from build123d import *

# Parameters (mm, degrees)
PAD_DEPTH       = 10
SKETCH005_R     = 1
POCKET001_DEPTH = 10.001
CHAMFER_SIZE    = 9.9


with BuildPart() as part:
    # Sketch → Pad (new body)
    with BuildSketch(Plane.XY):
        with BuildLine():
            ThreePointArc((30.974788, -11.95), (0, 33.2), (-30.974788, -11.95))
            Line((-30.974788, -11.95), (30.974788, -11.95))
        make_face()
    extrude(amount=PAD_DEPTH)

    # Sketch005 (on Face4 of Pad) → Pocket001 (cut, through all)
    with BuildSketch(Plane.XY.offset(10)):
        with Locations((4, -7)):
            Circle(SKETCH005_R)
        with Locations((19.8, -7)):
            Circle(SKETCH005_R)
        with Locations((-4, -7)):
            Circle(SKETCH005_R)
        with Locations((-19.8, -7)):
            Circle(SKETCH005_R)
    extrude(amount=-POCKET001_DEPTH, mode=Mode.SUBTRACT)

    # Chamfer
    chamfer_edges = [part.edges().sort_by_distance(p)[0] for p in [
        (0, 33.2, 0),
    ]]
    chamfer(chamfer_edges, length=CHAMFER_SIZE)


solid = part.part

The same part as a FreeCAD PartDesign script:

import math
import FreeCAD as App
import Part
import Sketcher
from FreeCAD import Vector
Q = App.Units.Quantity


def edges_at(feature, points):
    """Names of the edges that pass closest to the given points."""
    edges = feature.Shape.Edges
    near = lambda p: min(range(len(edges)), key=lambda i: edges[i].distToShape(Part.Vertex(*p))[0])
    return sorted({f"Edge{near(p) + 1}" for p in points})

doc = App.newDocument("Part")
body = doc.addObject("PartDesign::Body", "Body")

# Sketch on XY plane
sketch1 = body.newObject("Sketcher::SketchObject", "Sketch")
sketch1.AttachmentSupport = (doc.getObject("XY_Plane"), [""])
sketch1.MapMode = "FlatFace"
sketch1.addGeometry(Part.ArcOfCircle(Part.Circle(Vector(0, 0, 0), Vector(0, 0, 1), 33), math.radians(-21), math.radians(201)), False)
sketch1.addGeometry(Part.LineSegment(Vector(-31, -12, 0), Vector(31, -12, 0)), False)
sketch1.addConstraint(Sketcher.Constraint("Coincident", 0, 1, 1, 2))
sketch1.addConstraint(Sketcher.Constraint("Coincident", 1, 1, 0, 2))
sketch1.addConstraint(Sketcher.Constraint("Horizontal", 1))
sketch1.addConstraint(Sketcher.Constraint("Coincident", 0, 3, -1, 1))
sketch1.addConstraint(Sketcher.Constraint("Radius", 0, Q("33.2 mm")))
sketch1.addConstraint(Sketcher.Constraint("DistanceY", 0, 1, -1, 1, Q("11.95 mm")))
pad1 = body.newObject("PartDesign::Pad", "Pad")
pad1.Profile = sketch1
pad1.Length = 10

# Sketch on XY plane
sketch2 = body.newObject("Sketcher::SketchObject", "Sketch001")
sketch2.AttachmentSupport = (doc.getObject("XY_Plane"), [""])
sketch2.MapMode = "FlatFace"
sketch2.AttachmentOffset = App.Placement(Vector(0, 0, 10), App.Rotation())
sketch2.addGeometry(Part.Circle(Vector(4, -7, 0), Vector(0, 0, 1), 1), False)
sketch2.addGeometry(Part.Circle(Vector(19.8, -7, 0), Vector(0, 0, 1), 1), False)
sketch2.addGeometry(Part.Circle(Vector(-4, -7, 0), Vector(0, 0, 1), 1), False)
sketch2.addGeometry(Part.Circle(Vector(-19.8, -7, 0), Vector(0, 0, 1), 1), False)
sketch2.addConstraint(Sketcher.Constraint("Equal", 0, 1))
sketch2.addConstraint(Sketcher.Constraint("Equal", 1, 2))
sketch2.addConstraint(Sketcher.Constraint("Equal", 2, 3))
sketch2.addConstraint(Sketcher.Constraint("Symmetric", 0, 3, 2, 3, -2))
sketch2.addConstraint(Sketcher.Constraint("Symmetric", 1, 3, 3, 3, -2))
sketch2.addConstraint(Sketcher.Constraint("Horizontal", 0, 3, 1, 3))
sketch2.addConstraint(Sketcher.Constraint("Diameter", 0, Q("2 mm")))
sketch2.addConstraint(Sketcher.Constraint("DistanceX", -1, 1, 0, 3, Q("4 mm")))
sketch2.addConstraint(Sketcher.Constraint("DistanceY", 0, 3, -1, 1, Q("7 mm")))
sketch2.addConstraint(Sketcher.Constraint("DistanceX", -1, 1, 1, 3, Q("19.8 mm")))
pocket1 = body.newObject("PartDesign::Pocket", "Pocket")
pocket1.Profile = sketch2
pocket1.Type = "ThroughAll"
doc.recompute()

chamfer = body.newObject("PartDesign::Chamfer", "Chamfer")
chamfer.Base = (pocket1, edges_at(pocket1, [(0, 33.2, 0)]))
chamfer.Size = 9.9

doc.recompute()
